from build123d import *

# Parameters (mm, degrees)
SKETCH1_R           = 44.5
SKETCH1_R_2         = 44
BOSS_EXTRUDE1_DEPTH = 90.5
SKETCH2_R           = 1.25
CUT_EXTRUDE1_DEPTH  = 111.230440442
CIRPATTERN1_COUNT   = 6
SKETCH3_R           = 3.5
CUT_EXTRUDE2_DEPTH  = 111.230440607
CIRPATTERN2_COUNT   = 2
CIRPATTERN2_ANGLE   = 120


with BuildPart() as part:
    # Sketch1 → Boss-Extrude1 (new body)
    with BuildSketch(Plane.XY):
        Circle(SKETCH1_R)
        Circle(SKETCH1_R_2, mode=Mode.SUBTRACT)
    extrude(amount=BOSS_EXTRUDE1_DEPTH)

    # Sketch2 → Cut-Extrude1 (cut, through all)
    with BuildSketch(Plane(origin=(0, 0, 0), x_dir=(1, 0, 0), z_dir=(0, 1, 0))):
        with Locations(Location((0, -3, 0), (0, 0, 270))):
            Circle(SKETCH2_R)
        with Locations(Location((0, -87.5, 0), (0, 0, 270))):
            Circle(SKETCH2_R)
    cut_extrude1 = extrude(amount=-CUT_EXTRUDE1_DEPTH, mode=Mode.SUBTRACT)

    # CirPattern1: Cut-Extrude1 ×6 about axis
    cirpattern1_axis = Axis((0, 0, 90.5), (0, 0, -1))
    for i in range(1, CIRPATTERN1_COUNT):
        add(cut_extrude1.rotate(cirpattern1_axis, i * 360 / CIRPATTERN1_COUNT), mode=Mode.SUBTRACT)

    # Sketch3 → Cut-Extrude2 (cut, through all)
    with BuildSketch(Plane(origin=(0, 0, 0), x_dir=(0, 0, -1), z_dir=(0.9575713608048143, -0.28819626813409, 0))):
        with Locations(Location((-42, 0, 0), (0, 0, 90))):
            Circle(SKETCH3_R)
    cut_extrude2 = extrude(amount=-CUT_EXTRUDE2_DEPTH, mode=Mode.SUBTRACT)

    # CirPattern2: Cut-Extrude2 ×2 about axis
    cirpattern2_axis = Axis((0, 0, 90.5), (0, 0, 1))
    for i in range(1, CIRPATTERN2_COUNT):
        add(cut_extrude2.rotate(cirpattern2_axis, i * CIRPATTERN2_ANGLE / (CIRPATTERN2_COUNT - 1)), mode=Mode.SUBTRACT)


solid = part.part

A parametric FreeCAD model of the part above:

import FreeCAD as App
import Part
import Sketcher
from FreeCAD import Vector

doc = App.newDocument("Part")
body = doc.addObject("PartDesign::Body", "Body")

# Sketch on XY plane
sketch1 = body.newObject("Sketcher::SketchObject", "Sketch")
sketch1.AttachmentSupport = (doc.getObject("XY_Plane"), [""])
sketch1.MapMode = "FlatFace"
sketch1.addGeometry(Part.Circle(Vector(0, 0, 0), Vector(0, 0, 1), 44), False)
sketch1.addGeometry(Part.Circle(Vector(0, 0, 0), Vector(0, 0, 1), 44), False)
sketch1.addConstraint(Sketcher.Constraint("Coincident", 0, 3, -1, 1))
sketch1.addConstraint(Sketcher.Constraint("Coincident", 1, 3, -1, 1))
sketch1.addConstraint(Sketcher.Constraint("Diameter", 0, 89.0))
sketch1.addConstraint(Sketcher.Constraint("Diameter", 1, 88.0))
pad1 = body.newObject("PartDesign::Pad", "Pad")
pad1.Profile = sketch1
pad1.Length = 90.5

# Sketch on XZ plane
sketch2 = body.newObject("Sketcher::SketchObject", "Sketch001")
sketch2.AttachmentSupport = (doc.getObject("XZ_Plane"), [""])
sketch2.MapMode = "FlatFace"
sketch2.addGeometry(Part.Circle(Vector(0, 3, 0), Vector(0, 0, 1), 1.2), False)
sketch2.addGeometry(Part.Circle(Vector(0, 87.5, 0), Vector(0, 0, 1), 1.2), False)
sketch2.addConstraint(Sketcher.Constraint("Equal", 0, 1))
sketch2.addConstraint(Sketcher.Constraint("PointOnObject", 0, 3, -2))
sketch2.addConstraint(Sketcher.Constraint("PointOnObject", 1, 3, -2))
sketch2.addConstraint(Sketcher.Constraint("Diameter", 0, 2.5))
sketch2.addConstraint(Sketcher.Constraint("DistanceY", -1, 1, 0, 3, 3.0))
sketch2.addConstraint(Sketcher.Constraint("DistanceY", -1, 1, 1, 3, 87.5))
pocket1 = body.newObject("PartDesign::Pocket", "Pocket")
pocket1.Profile = sketch2
pocket1.Type = "ThroughAll"
pocket1.Reversed = True
doc.recompute()

polarpattern = body.newObject("PartDesign::PolarPattern", "PolarPattern")
polarpattern.Originals = [pocket1]
polarpattern.Axis = (doc.getObject("Z_Axis"), [""])
polarpattern.Angle = 360
polarpattern.Occurrences = 6
body.Tip = polarpattern

# Sketch on an angled plane
sketch3 = body.newObject("Sketcher::SketchObject", "Sketch002")
sketch3.Placement = App.Placement(Vector(0, 0, 0), App.Rotation(Vector(0, 0, -1), Vector(0.288196268, 0.957571361, 0), Vector(0.957571361, -0.288196268, 0), "ZXY"))
sketch3.addGeometry(Part.Circle(Vector(-42, 0, 0), Vector(0, 0, 1), 3.5), False)
sketch3.addConstraint(Sketcher.Constraint("PointOnObject", 0, 3, -1))
sketch3.addConstraint(Sketcher.Constraint("Diameter", 0, 7.0))
sketch3.addConstraint(Sketcher.Constraint("DistanceX", 0, 3, -1, 1, 42.0))
pocket2 = body.newObject("PartDesign::Pocket", "Pocket001")
pocket2.Profile = sketch3
pocket2.Type = "ThroughAll"
doc.recompute()

polarpattern2 = body.newObject("PartDesign::PolarPattern", "PolarPattern001")
polarpattern2.Originals = [pocket2]
polarpattern2.Axis = (doc.getObject("Z_Axis"), [""])
polarpattern2.Angle = 120
polarpattern2.Occurrences = 2
body.Tip = polarpattern2

doc.recompute()
